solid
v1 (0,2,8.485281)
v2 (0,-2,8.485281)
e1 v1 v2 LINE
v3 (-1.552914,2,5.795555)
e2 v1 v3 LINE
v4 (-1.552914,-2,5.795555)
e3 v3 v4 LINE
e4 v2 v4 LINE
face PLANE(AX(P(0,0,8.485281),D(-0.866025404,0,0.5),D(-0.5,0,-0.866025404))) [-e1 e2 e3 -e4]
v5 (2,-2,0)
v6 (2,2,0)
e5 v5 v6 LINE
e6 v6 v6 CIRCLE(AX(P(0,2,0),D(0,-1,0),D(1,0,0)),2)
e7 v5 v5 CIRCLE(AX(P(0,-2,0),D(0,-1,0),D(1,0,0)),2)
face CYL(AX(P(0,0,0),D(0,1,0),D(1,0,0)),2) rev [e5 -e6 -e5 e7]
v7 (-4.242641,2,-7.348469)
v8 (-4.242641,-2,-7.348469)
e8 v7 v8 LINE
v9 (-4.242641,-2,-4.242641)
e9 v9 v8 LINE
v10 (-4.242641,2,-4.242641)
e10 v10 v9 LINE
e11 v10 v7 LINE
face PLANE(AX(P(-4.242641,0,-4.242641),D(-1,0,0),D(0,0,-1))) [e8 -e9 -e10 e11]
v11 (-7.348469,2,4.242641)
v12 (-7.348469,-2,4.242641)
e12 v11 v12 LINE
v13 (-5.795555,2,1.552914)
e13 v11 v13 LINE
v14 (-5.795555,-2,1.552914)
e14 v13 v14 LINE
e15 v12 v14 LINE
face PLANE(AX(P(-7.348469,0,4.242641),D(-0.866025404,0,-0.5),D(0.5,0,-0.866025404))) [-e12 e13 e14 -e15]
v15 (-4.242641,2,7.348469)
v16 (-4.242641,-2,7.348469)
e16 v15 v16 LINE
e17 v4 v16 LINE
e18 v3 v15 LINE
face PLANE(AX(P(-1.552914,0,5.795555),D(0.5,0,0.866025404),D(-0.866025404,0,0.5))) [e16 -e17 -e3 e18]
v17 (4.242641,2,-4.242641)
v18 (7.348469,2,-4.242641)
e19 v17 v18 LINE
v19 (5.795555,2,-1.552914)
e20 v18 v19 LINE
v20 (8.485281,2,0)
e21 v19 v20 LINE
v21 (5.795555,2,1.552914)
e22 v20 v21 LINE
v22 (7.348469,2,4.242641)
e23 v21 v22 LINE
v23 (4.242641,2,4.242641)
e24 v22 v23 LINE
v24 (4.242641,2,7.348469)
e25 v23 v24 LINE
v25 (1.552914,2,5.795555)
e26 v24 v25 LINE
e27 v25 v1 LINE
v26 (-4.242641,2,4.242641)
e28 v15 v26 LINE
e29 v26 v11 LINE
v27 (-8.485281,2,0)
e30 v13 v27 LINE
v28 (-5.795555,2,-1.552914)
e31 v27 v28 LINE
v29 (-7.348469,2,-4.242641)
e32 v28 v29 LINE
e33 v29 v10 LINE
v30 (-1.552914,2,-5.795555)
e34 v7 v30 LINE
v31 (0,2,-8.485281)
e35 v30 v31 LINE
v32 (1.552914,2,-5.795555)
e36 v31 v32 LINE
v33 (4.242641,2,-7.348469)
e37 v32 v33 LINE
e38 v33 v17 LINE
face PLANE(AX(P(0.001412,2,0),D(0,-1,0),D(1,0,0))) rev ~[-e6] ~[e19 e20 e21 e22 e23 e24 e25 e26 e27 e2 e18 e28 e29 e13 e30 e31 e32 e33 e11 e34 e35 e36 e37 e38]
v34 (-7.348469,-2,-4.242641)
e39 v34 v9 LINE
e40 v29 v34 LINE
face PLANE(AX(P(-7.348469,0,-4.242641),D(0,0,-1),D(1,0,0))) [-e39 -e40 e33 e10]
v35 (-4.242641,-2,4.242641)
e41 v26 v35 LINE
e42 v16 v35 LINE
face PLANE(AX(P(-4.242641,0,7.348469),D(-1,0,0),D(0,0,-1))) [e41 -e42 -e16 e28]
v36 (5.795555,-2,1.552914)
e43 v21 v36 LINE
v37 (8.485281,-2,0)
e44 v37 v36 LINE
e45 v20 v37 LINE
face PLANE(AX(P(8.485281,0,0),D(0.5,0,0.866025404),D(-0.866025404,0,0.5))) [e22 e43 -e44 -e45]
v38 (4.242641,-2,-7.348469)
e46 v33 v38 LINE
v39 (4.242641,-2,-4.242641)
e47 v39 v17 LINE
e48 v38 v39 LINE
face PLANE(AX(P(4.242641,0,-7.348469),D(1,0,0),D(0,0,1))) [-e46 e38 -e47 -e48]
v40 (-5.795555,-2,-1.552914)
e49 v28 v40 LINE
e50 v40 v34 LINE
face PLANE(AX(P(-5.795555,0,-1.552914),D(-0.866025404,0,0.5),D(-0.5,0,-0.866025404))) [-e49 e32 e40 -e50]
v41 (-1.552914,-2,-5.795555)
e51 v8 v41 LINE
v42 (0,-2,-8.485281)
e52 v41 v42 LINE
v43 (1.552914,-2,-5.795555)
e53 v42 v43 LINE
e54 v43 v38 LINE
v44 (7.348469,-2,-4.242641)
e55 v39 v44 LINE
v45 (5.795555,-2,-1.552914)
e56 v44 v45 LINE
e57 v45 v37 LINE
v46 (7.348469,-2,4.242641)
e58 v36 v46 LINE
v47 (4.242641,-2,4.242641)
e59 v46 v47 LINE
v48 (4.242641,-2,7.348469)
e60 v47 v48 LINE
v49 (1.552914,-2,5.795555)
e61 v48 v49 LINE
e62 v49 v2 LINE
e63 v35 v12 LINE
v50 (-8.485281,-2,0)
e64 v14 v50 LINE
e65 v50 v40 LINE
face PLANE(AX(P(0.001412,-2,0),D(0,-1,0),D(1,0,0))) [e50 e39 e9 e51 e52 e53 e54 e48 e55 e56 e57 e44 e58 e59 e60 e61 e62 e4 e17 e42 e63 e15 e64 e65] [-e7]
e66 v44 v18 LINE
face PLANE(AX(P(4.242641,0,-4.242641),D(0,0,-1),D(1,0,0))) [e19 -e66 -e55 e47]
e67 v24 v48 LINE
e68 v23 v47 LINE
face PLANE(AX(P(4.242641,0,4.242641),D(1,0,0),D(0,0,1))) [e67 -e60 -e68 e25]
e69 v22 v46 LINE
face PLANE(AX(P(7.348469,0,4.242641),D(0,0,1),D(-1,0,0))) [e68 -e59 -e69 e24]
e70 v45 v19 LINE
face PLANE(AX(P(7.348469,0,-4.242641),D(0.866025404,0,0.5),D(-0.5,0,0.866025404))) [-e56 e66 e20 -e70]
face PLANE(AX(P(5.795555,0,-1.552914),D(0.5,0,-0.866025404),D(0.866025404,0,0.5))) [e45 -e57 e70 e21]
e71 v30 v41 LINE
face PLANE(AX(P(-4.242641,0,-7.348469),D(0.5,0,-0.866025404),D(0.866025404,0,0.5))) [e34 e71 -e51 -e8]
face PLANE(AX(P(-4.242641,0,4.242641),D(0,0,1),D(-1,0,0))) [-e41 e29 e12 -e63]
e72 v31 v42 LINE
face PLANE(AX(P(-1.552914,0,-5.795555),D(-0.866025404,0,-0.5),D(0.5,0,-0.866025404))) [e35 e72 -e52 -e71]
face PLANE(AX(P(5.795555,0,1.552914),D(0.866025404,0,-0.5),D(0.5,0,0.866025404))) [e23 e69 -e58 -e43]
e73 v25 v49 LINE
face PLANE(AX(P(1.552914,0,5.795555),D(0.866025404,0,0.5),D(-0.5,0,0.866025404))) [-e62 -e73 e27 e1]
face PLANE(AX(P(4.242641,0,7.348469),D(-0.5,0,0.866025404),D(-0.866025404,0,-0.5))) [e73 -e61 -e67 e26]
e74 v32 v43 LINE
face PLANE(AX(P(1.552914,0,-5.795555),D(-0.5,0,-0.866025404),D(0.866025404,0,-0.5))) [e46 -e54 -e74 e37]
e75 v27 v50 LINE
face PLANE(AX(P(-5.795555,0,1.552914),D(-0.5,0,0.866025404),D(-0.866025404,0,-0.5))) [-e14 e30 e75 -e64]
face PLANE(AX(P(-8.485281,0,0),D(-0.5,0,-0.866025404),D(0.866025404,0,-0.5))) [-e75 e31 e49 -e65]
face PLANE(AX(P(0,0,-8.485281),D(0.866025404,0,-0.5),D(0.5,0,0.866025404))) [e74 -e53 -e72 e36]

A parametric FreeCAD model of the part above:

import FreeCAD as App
import Part
import Sketcher
from FreeCAD import Vector
Q = App.Units.Quantity

doc = App.newDocument("Part")
body = doc.addObject("PartDesign::Body", "Body")

# Sketch on XZ plane
sketch1 = doc.addObject("Sketcher::SketchObject", "Sketch")
body.addObject(sketch1)
sketch1.AttachmentSupport = (doc.XZ_Plane, [""])
sketch1.MapMode = "FlatFace"
sketch1.addGeometry(Part.LineSegment(Vector(5.8, -1.6, 0), Vector(8.5, 0, 0)), False)
sketch1.addGeometry(Part.LineSegment(Vector(8.5, 0, 0), Vector(5.8, 1.6, 0)), False)
sketch1.addGeometry(Part.LineSegment(Vector(5.8, 1.6, 0), Vector(7.3, 4.2, 0)), False)
sketch1.addGeometry(Part.LineSegment(Vector(7.3, 4.2, 0), Vector(4.2, 4.2, 0)), False)
sketch1.addGeometry(Part.LineSegment(Vector(4.2, 4.2, 0), Vector(4.2, 7.3, 0)), False)
sketch1.addGeometry(Part.LineSegment(Vector(4.2, 7.3, 0), Vector(1.6, 5.8, 0)), False)
sketch1.addGeometry(Part.LineSegment(Vector(1.6, 5.8, 0), Vector(0, 8.5, 0)), False)
sketch1.addGeometry(Part.LineSegment(Vector(0, 8.5, 0), Vector(-1.6, 5.8, 0)), False)
sketch1.addGeometry(Part.LineSegment(Vector(-1.6, 5.8, 0), Vector(-4.2, 7.3, 0)), False)
sketch1.addGeometry(Part.LineSegment(Vector(-4.2, 7.3, 0), Vector(-4.2, 4.2, 0)), False)
sketch1.addGeometry(Part.LineSegment(Vector(-4.2, 4.2, 0), Vector(-7.3, 4.2, 0)), False)
sketch1.addGeometry(Part.LineSegment(Vector(-7.3, 4.2, 0), Vector(-5.8, 1.6, 0)), False)
sketch1.addGeometry(Part.LineSegment(Vector(-5.8, 1.6, 0), Vector(-8.5, 0, 0)), False)
sketch1.addGeometry(Part.LineSegment(Vector(-8.5, 0, 0), Vector(-5.8, -1.6, 0)), False)
sketch1.addGeometry(Part.LineSegment(Vector(-5.8, -1.6, 0), Vector(-7.3, -4.2, 0)), False)
sketch1.addGeometry(Part.LineSegment(Vector(-7.3, -4.2, 0), Vector(-4.2, -4.2, 0)), False)
sketch1.addGeometry(Part.LineSegment(Vector(-4.2, -4.2, 0), Vector(-4.2, -7.3, 0)), False)
sketch1.addGeometry(Part.LineSegment(Vector(-4.2, -7.3, 0), Vector(-1.6, -5.8, 0)), False)
sketch1.addGeometry(Part.LineSegment(Vector(-1.6, -5.8, 0), Vector(0, -8.5, 0)), False)
sketch1.addGeometry(Part.LineSegment(Vector(0, -8.5, 0), Vector(1.6, -5.8, 0)), False)
sketch1.addGeometry(Part.LineSegment(Vector(1.6, -5.8, 0), Vector(4.2, -7.3, 0)), False)
sketch1.addGeometry(Part.LineSegment(Vector(4.2, -7.3, 0), Vector(4.2, -4.2, 0)), False)
sketch1.addGeometry(Part.LineSegment(Vector(4.2, -4.2, 0), Vector(7.3, -4.2, 0)), False)
sketch1.addGeometry(Part.LineSegment(Vector(7.3, -4.2, 0), Vector(5.8, -1.6, 0)), False)
sketch1.addGeometry(Part.Circle(Vector(0, 0, 0), Vector(0, 0, 1), 2), False)
sketch1.addConstraint(Sketcher.Constraint("Coincident", 0, 2, 1, 1))
sketch1.addConstraint(Sketcher.Constraint("Coincident", 1, 2, 2, 1))
sketch1.addConstraint(Sketcher.Constraint("Coincident", 2, 2, 3, 1))
sketch1.addConstraint(Sketcher.Constraint("Coincident", 3, 2, 4, 1))
sketch1.addConstraint(Sketcher.Constraint("Coincident", 4, 2, 5, 1))
sketch1.addConstraint(Sketcher.Constraint("Coincident", 5, 2, 6, 1))
sketch1.addConstraint(Sketcher.Constraint("Coincident", 6, 2, 7, 1))
sketch1.addConstraint(Sketcher.Constraint("Coincident", 7, 2, 8, 1))
sketch1.addConstraint(Sketcher.Constraint("Coincident", 8, 2, 9, 1))
sketch1.addConstraint(Sketcher.Constraint("Coincident", 9, 2, 10, 1))
sketch1.addConstraint(Sketcher.Constraint("Coincident", 10, 2, 11, 1))
sketch1.addConstraint(Sketcher.Constraint("Coincident", 11, 2, 12, 1))
sketch1.addConstraint(Sketcher.Constraint("Coincident", 12, 2, 13, 1))
sketch1.addConstraint(Sketcher.Constraint("Coincident", 13, 2, 14, 1))
sketch1.addConstraint(Sketcher.Constraint("Coincident", 14, 2, 15, 1))
sketch1.addConstraint(Sketcher.Constraint("Coincident", 15, 2, 16, 1))
sketch1.addConstraint(Sketcher.Constraint("Coincident", 16, 2, 17, 1))
sketch1.addConstraint(Sketcher.Constraint("Coincident", 17, 2, 18, 1))
sketch1.addConstraint(Sketcher.Constraint("Coincident", 18, 2, 19, 1))
sketch1.addConstraint(Sketcher.Constraint("Coincident", 19, 2, 20, 1))
sketch1.addConstraint(Sketcher.Constraint("Coincident", 20, 2, 21, 1))
sketch1.addConstraint(Sketcher.Constraint("Coincident", 21, 2, 22, 1))
sketch1.addConstraint(Sketcher.Constraint("Coincident", 22, 2, 23, 1))
sketch1.addConstraint(Sketcher.Constraint("Coincident", 23, 2, 0, 1))
sketch1.addConstraint(Sketcher.Constraint("Horizontal", 3))
sketch1.addConstraint(Sketcher.Constraint("Vertical", 4))
sketch1.addConstraint(Sketcher.Constraint("Vertical", 9))
sketch1.addConstraint(Sketcher.Constraint("Horizontal", 10))
sketch1.addConstraint(Sketcher.Constraint("Horizontal", 15))
sketch1.addConstraint(Sketcher.Constraint("Vertical", 16))
sketch1.addConstraint(Sketcher.Constraint("Vertical", 21))
sketch1.addConstraint(Sketcher.Constraint("Horizontal", 22))
sketch1.addConstraint(Sketcher.Constraint("Coincident", 24, 3, -1, 1))
sketch1.addConstraint(Sketcher.Constraint("Symmetric", 0, 2, 12, 2, -1, 1))
sketch1.addConstraint(Sketcher.Constraint("Symmetric", 1, 2, 13, 2, -1, 1))
sketch1.addConstraint(Sketcher.Constraint("Symmetric", 2, 2, 14, 2, -1, 1))
sketch1.addConstraint(Sketcher.Constraint("Symmetric", 4, 2, 16, 2, -1, 1))
sketch1.addConstraint(Sketcher.Constraint("Symmetric", 5, 2, 17, 2, -1, 1))
sketch1.addConstraint(Sketcher.Constraint("Symmetric", 6, 2, 18, 2, -1, 1))
sketch1.addConstraint(Sketcher.Constraint("Symmetric", 7, 2, 19, 2, -1, 1))
sketch1.addConstraint(Sketcher.Constraint("Symmetric", 8, 2, 20, 2, -1, 1))
sketch1.addConstraint(Sketcher.Constraint("Symmetric", 10, 2, 22, 2, -1, 1))
sketch1.addConstraint(Sketcher.Constraint("Symmetric", 11, 2, 23, 2, -1, 1))
sketch1.addConstraint(Sketcher.Constraint("Symmetric", 5, 2, 7, 2, -2))
sketch1.addConstraint(Sketcher.Constraint("Symmetric", 4, 2, 8, 2, -2))
sketch1.addConstraint(Sketcher.Constraint("Symmetric", 2, 2, 10, 2, -2))
sketch1.addConstraint(Sketcher.Constraint("Symmetric", 1, 2, 11, 2, -2))
sketch1.addConstraint(Sketcher.Constraint("PointOnObject", 0, 2, -1))
sketch1.addConstraint(Sketcher.Constraint("PointOnObject", 6, 2, -2))
sketch1.addConstraint(Sketcher.Constraint("Perpendicular", 1, 2))
sketch1.addConstraint(Sketcher.Constraint("Parallel", 0, 5))
sketch1.addConstraint(Sketcher.Constraint("Perpendicular", 5, 6))
sketch1.addConstraint(Sketcher.Constraint("Equal", 22, 4))
sketch1.addConstraint(Sketcher.Constraint("Equal", 1, 2))
sketch1.addConstraint(Sketcher.Constraint("Equal", 2, 5))
sketch1.addConstraint(Sketcher.Constraint("Equal", 5, 6))
sketch1.addConstraint(Sketcher.Constraint("Diameter", 24, 4.0))
sketch1.addConstraint(Sketcher.Constraint("Angle", 0, Q("30 deg")))
sketch1.addConstraint(Sketcher.Constraint("DistanceX", 3, 2, 3, 1, 3.105829))
sketch1.addConstraint(Sketcher.Constraint("Distance", 0, 3.105829))
pad1 = doc.addObject("PartDesign::Pad", "Pad")
body.addObject(pad1)
pad1.Profile = sketch1
pad1.Length = 4
pad1.Midplane = True

doc.recompute()
